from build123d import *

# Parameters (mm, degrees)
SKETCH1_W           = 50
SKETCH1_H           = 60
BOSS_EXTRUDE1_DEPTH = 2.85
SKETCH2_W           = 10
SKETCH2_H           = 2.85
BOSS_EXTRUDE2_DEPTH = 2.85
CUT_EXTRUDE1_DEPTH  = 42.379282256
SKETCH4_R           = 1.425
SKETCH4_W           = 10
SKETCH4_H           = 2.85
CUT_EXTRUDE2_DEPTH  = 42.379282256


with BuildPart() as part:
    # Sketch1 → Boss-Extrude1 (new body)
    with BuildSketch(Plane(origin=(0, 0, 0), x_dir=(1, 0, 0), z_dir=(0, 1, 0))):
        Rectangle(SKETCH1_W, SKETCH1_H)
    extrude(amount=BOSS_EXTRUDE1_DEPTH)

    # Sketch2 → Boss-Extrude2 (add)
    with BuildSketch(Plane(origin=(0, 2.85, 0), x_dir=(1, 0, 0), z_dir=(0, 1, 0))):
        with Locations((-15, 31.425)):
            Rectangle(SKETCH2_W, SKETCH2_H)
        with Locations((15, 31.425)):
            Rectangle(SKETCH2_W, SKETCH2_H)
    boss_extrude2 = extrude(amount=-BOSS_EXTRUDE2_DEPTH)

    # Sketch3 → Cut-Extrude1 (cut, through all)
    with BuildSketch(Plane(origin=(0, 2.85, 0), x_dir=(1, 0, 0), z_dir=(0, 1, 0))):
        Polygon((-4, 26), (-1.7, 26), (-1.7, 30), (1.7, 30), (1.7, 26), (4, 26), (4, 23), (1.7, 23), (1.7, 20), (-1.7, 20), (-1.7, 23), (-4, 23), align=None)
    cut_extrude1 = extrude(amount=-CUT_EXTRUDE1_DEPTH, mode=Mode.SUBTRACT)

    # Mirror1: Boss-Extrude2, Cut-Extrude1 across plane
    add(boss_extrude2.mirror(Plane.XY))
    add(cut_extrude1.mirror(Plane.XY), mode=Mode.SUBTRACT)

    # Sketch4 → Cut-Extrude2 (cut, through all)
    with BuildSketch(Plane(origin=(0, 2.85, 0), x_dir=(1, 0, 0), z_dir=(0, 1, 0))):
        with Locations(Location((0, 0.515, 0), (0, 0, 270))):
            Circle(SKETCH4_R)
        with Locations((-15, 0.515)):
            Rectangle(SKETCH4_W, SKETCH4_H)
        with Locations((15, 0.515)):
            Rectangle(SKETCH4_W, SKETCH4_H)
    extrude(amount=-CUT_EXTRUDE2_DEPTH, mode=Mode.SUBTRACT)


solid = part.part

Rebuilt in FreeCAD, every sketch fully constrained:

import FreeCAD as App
import Part
import Sketcher

V = App.Vector

doc = App.newDocument("Part")
body = doc.addObject("PartDesign::Body", "Body")

# Sketch on XZ plane
sketch1 = body.newObject("Sketcher::SketchObject", "Sketch")
sketch1.AttachmentSupport = (doc.getObject("XZ_Plane"), [""])
sketch1.MapMode = "FlatFace"
sketch1.addGeometry([
    Part.LineSegment(V(-25, -30, 0), V(-25, 30, 0)),
    Part.LineSegment(V(-25, 30, 0), V(25, 30, 0)),
    Part.LineSegment(V(25, 30, 0), V(25, -30, 0)),
    Part.LineSegment(V(25, -30, 0), V(-25, -30, 0)),
], False)
sketch1.addConstraint([
    Sketcher.Constraint("Coincident", 0, 2, 1, 1),
    Sketcher.Constraint("Coincident", 1, 2, 2, 1),
    Sketcher.Constraint("Coincident", 2, 2, 3, 1),
    Sketcher.Constraint("Coincident", 3, 2, 0, 1),
    Sketcher.Constraint("Vertical", 0),
    Sketcher.Constraint("Horizontal", 1),
    Sketcher.Constraint("Vertical", 2),
    Sketcher.Constraint("Horizontal", 3),
    Sketcher.Constraint("Symmetric", 0, 2, 2, 2, -1, 1),
    Sketcher.Constraint("DistanceX", 1, 1, 1, 2, 50.0),
    Sketcher.Constraint("DistanceY", 0, 1, 0, 2, 60.0),
])
pad1 = body.newObject("PartDesign::Pad", "Pad")
pad1.Profile = sketch1
pad1.Length = 2.85
pad1.Reversed = True

# Sketch on XZ plane
sketch2 = body.newObject("Sketcher::SketchObject", "Sketch001")
sketch2.AttachmentSupport = (doc.getObject("XZ_Plane"), [""])
sketch2.MapMode = "FlatFace"
sketch2.AttachmentOffset = App.Placement(V(0, 0, -2.85), App.Rotation())
sketch2.addGeometry([
    Part.LineSegment(V(-20, -32.9, 0), V(-20, -30, 0)),  # 0
    Part.LineSegment(V(-20, -30, 0), V(-10, -30, 0)),  # 1
    Part.LineSegment(V(-10, -30, 0), V(-10, -32.9, 0)),  # 2
    Part.LineSegment(V(-10, -32.9, 0), V(-20, -32.9, 0)),  # 3
    Part.LineSegment(V(10, -32.9, 0), V(10, -30, 0)),  # 4
    Part.LineSegment(V(10, -30, 0), V(20, -30, 0)),  # 5
    Part.LineSegment(V(20, -30, 0), V(20, -32.9, 0)),  # 6
    Part.LineSegment(V(20, -32.9, 0), V(10, -32.9, 0)),  # 7
], False)
sketch2.addConstraint([
    Sketcher.Constraint("Coincident", 0, 2, 1, 1),
    Sketcher.Constraint("Coincident", 1, 2, 2, 1),
    Sketcher.Constraint("Coincident", 2, 2, 3, 1),
    Sketcher.Constraint("Coincident", 3, 2, 0, 1),
    Sketcher.Constraint("Coincident", 4, 2, 5, 1),
    Sketcher.Constraint("Coincident", 5, 2, 6, 1),
    Sketcher.Constraint("Coincident", 6, 2, 7, 1),
    Sketcher.Constraint("Coincident", 7, 2, 4, 1),
    Sketcher.Constraint("Vertical", 0),
    Sketcher.Constraint("Horizontal", 1),
    Sketcher.Constraint("Vertical", 2),
    Sketcher.Constraint("Horizontal", 3),
    Sketcher.Constraint("Vertical", 4),
    Sketcher.Constraint("Horizontal", 5),
    Sketcher.Constraint("Vertical", 6),
    Sketcher.Constraint("Horizontal", 7),
    Sketcher.Constraint("Symmetric", 1, 2, 4, 2, -2),
    Sketcher.Constraint("Symmetric", 3, 2, 6, 2, -2),
    Sketcher.Constraint("DistanceX", 1, 1, 1, 2, 10.0),
    Sketcher.Constraint("DistanceX", 0, 2, -1, 1, 20.0),
    Sketcher.Constraint("DistanceY", 0, 2, -1, 1, 30.0),
    Sketcher.Constraint("DistanceY", 0, 1, 0, 2, 2.85),
])
pad2 = body.newObject("PartDesign::Pad", "Pad001")
pad2.Profile = sketch2
pad2.Length = 2.85

# Sketch on XZ plane
sketch3 = body.newObject("Sketcher::SketchObject", "Sketch002")
sketch3.AttachmentSupport = (doc.getObject("XZ_Plane"), [""])
sketch3.MapMode = "FlatFace"
sketch3.AttachmentOffset = App.Placement(V(0, 0, -2.85), App.Rotation())
sketch3.addGeometry([
    Part.LineSegment(V(-1.7, -26, 0), V(-4, -26, 0)),  # 0
    Part.LineSegment(V(-4, -26, 0), V(-4, -23, 0)),  # 1
    Part.LineSegment(V(-4, -23, 0), V(-1.7, -23, 0)),  # 2
    Part.LineSegment(V(-1.7, -23, 0), V(-1.7, -20, 0)),  # 3
    Part.LineSegment(V(-1.7, -20, 0), V(1.7, -20, 0)),  # 4
    Part.LineSegment(V(1.7, -20, 0), V(1.7, -23, 0)),  # 5
    Part.LineSegment(V(1.7, -23, 0), V(4, -23, 0)),  # 6
    Part.LineSegment(V(4, -23, 0), V(4, -26, 0)),  # 7
    Part.LineSegment(V(4, -26, 0), V(1.7, -26, 0)),  # 8
    Part.LineSegment(V(1.7, -26, 0), V(1.7, -30, 0)),  # 9
    Part.LineSegment(V(1.7, -30, 0), V(-1.7, -30, 0)),  # 10
    Part.LineSegment(V(-1.7, -30, 0), V(-1.7, -26, 0)),  # 11
], False)
sketch3.addConstraint([
    Sketcher.Constraint("Coincident", 0, 2, 1, 1),
    Sketcher.Constraint("Coincident", 1, 2, 2, 1),
    Sketcher.Constraint("Coincident", 2, 2, 3, 1),
    Sketcher.Constraint("Coincident", 3, 2, 4, 1),
    Sketcher.Constraint("Coincident", 4, 2, 5, 1),
    Sketcher.Constraint("Coincident", 5, 2, 6, 1),
    Sketcher.Constraint("Coincident", 6, 2, 7, 1),
    Sketcher.Constraint("Coincident", 7, 2, 8, 1),
    Sketcher.Constraint("Coincident", 8, 2, 9, 1),
    Sketcher.Constraint("Coincident", 9, 2, 10, 1),
    Sketcher.Constraint("Coincident", 10, 2, 11, 1),
    Sketcher.Constraint("Coincident", 11, 2, 0, 1),
    Sketcher.Constraint("Horizontal", 0),
    Sketcher.Constraint("Vertical", 1),
    Sketcher.Constraint("Horizontal", 2),
    Sketcher.Constraint("Vertical", 3),
    Sketcher.Constraint("Horizontal", 4),
    Sketcher.Constraint("Vertical", 5),
    Sketcher.Constraint("Horizontal", 6),
    Sketcher.Constraint("Vertical", 7),
    Sketcher.Constraint("Horizontal", 8),
    Sketcher.Constraint("Vertical", 9),
    Sketcher.Constraint("Horizontal", 10),
    Sketcher.Constraint("Vertical", 11),
    Sketcher.Constraint("Symmetric", 2, 2, 5, 2, -2),
    Sketcher.Constraint("Symmetric", 0, 2, 7, 2, -2),
    Sketcher.Constraint("Vertical", 5, 2, 8, 2),
    Sketcher.Constraint("Vertical", 3, 2, 10, 2),
    Sketcher.Constraint("Equal", 1, 3),
    Sketcher.Constraint("DistanceY", 1, 1, 1, 2, 3.0),
    Sketcher.Constraint("DistanceY", 9, 2, 9, 1, 4.0),
    Sketcher.Constraint("DistanceX", 0, 2, 0, 1, 2.3),
    Sketcher.Constraint("DistanceX", 4, 1, 4, 2, 3.4),
    Sketcher.Constraint("DistanceY", 0, 2, -1, 1, 26.0),
])
pocket1 = body.newObject("PartDesign::Pocket", "Pocket")
pocket1.Profile = sketch3
pocket1.Type = "ThroughAll"
pocket1.Reversed = True
doc.recompute()

mirrored = body.newObject("PartDesign::Mirrored", "Mirrored")
mirrored.Originals = [pad2, pocket1]
mirrored.MirrorPlane = (doc.getObject("XY_Plane"), [""])
body.Tip = mirrored

# Sketch on XZ plane
sketch4 = body.newObject("Sketcher::SketchObject", "Sketch003")
sketch4.AttachmentSupport = (doc.getObject("XZ_Plane"), [""])
sketch4.MapMode = "FlatFace"
sketch4.AttachmentOffset = App.Placement(V(0, 0, -2.85), App.Rotation())
sketch4.addGeometry([
    Part.Circle(V(0, -0.5, 0), V(0, 0, 1), 1.4),  # 0
    Part.LineSegment(V(-20, -1.9, 0), V(-20, 0.9, 0)),  # 1
    Part.LineSegment(V(-20, 0.9, 0), V(-10, 0.9, 0)),  # 2
    Part.LineSegment(V(-10, 0.9, 0), V(-10, -1.9, 0)),  # 3
    Part.LineSegment(V(-10, -1.9, 0), V(-20, -1.9, 0)),  # 4
    Part.LineSegment(V(10, -1.9, 0), V(10, 0.9, 0)),  # 5
    Part.LineSegment(V(10, 0.9, 0), V(20, 0.9, 0)),  # 6
    Part.LineSegment(V(20, 0.9, 0), V(20, -1.9, 0)),  # 7
    Part.LineSegment(V(20, -1.9, 0), V(10, -1.9, 0)),  # 8
], False)
sketch4.addConstraint([
    Sketcher.Constraint("Coincident", 1, 2, 2, 1),
    Sketcher.Constraint("Coincident", 2, 2, 3, 1),
    Sketcher.Constraint("Coincident", 3, 2, 4, 1),
    Sketcher.Constraint("Coincident", 4, 2, 1, 1),
    Sketcher.Constraint("Coincident", 5, 2, 6, 1),
    Sketcher.Constraint("Coincident", 6, 2, 7, 1),
    Sketcher.Constraint("Coincident", 7, 2, 8, 1),
    Sketcher.Constraint("Coincident", 8, 2, 5, 1),
    Sketcher.Constraint("Vertical", 1),
    Sketcher.Constraint("Horizontal", 2),
    Sketcher.Constraint("Vertical", 3),
    Sketcher.Constraint("Horizontal", 4),
    Sketcher.Constraint("Vertical", 5),
    Sketcher.Constraint("Horizontal", 6),
    Sketcher.Constraint("Vertical", 7),
    Sketcher.Constraint("Horizontal", 8),
    Sketcher.Constraint("Symmetric", 2, 2, 5, 2, -2),
    Sketcher.Constraint("Symmetric", 4, 2, 7, 2, -2),
    Sketcher.Constraint("PointOnObject", 0, 3, -2),
    Sketcher.Constraint("Diameter", 0, 2.85),
    Sketcher.Constraint("DistanceX", 2, 1, 2, 2, 10.0),
    Sketcher.Constraint("DistanceX", 1, 2, -1, 1, 20.0),
    Sketcher.Constraint("DistanceY", 1, 1, 1, 2, 2.85),
    Sketcher.Constraint("DistanceY", -1, 1, 1, 2, 0.91),
    Sketcher.Constraint("DistanceY", 0, 3, -1, 1, 0.515),
])
pocket2 = body.newObject("PartDesign::Pocket", "Pocket001")
pocket2.Profile = sketch4
pocket2.Type = "ThroughAll"
pocket2.Reversed = True

doc.recompute()
